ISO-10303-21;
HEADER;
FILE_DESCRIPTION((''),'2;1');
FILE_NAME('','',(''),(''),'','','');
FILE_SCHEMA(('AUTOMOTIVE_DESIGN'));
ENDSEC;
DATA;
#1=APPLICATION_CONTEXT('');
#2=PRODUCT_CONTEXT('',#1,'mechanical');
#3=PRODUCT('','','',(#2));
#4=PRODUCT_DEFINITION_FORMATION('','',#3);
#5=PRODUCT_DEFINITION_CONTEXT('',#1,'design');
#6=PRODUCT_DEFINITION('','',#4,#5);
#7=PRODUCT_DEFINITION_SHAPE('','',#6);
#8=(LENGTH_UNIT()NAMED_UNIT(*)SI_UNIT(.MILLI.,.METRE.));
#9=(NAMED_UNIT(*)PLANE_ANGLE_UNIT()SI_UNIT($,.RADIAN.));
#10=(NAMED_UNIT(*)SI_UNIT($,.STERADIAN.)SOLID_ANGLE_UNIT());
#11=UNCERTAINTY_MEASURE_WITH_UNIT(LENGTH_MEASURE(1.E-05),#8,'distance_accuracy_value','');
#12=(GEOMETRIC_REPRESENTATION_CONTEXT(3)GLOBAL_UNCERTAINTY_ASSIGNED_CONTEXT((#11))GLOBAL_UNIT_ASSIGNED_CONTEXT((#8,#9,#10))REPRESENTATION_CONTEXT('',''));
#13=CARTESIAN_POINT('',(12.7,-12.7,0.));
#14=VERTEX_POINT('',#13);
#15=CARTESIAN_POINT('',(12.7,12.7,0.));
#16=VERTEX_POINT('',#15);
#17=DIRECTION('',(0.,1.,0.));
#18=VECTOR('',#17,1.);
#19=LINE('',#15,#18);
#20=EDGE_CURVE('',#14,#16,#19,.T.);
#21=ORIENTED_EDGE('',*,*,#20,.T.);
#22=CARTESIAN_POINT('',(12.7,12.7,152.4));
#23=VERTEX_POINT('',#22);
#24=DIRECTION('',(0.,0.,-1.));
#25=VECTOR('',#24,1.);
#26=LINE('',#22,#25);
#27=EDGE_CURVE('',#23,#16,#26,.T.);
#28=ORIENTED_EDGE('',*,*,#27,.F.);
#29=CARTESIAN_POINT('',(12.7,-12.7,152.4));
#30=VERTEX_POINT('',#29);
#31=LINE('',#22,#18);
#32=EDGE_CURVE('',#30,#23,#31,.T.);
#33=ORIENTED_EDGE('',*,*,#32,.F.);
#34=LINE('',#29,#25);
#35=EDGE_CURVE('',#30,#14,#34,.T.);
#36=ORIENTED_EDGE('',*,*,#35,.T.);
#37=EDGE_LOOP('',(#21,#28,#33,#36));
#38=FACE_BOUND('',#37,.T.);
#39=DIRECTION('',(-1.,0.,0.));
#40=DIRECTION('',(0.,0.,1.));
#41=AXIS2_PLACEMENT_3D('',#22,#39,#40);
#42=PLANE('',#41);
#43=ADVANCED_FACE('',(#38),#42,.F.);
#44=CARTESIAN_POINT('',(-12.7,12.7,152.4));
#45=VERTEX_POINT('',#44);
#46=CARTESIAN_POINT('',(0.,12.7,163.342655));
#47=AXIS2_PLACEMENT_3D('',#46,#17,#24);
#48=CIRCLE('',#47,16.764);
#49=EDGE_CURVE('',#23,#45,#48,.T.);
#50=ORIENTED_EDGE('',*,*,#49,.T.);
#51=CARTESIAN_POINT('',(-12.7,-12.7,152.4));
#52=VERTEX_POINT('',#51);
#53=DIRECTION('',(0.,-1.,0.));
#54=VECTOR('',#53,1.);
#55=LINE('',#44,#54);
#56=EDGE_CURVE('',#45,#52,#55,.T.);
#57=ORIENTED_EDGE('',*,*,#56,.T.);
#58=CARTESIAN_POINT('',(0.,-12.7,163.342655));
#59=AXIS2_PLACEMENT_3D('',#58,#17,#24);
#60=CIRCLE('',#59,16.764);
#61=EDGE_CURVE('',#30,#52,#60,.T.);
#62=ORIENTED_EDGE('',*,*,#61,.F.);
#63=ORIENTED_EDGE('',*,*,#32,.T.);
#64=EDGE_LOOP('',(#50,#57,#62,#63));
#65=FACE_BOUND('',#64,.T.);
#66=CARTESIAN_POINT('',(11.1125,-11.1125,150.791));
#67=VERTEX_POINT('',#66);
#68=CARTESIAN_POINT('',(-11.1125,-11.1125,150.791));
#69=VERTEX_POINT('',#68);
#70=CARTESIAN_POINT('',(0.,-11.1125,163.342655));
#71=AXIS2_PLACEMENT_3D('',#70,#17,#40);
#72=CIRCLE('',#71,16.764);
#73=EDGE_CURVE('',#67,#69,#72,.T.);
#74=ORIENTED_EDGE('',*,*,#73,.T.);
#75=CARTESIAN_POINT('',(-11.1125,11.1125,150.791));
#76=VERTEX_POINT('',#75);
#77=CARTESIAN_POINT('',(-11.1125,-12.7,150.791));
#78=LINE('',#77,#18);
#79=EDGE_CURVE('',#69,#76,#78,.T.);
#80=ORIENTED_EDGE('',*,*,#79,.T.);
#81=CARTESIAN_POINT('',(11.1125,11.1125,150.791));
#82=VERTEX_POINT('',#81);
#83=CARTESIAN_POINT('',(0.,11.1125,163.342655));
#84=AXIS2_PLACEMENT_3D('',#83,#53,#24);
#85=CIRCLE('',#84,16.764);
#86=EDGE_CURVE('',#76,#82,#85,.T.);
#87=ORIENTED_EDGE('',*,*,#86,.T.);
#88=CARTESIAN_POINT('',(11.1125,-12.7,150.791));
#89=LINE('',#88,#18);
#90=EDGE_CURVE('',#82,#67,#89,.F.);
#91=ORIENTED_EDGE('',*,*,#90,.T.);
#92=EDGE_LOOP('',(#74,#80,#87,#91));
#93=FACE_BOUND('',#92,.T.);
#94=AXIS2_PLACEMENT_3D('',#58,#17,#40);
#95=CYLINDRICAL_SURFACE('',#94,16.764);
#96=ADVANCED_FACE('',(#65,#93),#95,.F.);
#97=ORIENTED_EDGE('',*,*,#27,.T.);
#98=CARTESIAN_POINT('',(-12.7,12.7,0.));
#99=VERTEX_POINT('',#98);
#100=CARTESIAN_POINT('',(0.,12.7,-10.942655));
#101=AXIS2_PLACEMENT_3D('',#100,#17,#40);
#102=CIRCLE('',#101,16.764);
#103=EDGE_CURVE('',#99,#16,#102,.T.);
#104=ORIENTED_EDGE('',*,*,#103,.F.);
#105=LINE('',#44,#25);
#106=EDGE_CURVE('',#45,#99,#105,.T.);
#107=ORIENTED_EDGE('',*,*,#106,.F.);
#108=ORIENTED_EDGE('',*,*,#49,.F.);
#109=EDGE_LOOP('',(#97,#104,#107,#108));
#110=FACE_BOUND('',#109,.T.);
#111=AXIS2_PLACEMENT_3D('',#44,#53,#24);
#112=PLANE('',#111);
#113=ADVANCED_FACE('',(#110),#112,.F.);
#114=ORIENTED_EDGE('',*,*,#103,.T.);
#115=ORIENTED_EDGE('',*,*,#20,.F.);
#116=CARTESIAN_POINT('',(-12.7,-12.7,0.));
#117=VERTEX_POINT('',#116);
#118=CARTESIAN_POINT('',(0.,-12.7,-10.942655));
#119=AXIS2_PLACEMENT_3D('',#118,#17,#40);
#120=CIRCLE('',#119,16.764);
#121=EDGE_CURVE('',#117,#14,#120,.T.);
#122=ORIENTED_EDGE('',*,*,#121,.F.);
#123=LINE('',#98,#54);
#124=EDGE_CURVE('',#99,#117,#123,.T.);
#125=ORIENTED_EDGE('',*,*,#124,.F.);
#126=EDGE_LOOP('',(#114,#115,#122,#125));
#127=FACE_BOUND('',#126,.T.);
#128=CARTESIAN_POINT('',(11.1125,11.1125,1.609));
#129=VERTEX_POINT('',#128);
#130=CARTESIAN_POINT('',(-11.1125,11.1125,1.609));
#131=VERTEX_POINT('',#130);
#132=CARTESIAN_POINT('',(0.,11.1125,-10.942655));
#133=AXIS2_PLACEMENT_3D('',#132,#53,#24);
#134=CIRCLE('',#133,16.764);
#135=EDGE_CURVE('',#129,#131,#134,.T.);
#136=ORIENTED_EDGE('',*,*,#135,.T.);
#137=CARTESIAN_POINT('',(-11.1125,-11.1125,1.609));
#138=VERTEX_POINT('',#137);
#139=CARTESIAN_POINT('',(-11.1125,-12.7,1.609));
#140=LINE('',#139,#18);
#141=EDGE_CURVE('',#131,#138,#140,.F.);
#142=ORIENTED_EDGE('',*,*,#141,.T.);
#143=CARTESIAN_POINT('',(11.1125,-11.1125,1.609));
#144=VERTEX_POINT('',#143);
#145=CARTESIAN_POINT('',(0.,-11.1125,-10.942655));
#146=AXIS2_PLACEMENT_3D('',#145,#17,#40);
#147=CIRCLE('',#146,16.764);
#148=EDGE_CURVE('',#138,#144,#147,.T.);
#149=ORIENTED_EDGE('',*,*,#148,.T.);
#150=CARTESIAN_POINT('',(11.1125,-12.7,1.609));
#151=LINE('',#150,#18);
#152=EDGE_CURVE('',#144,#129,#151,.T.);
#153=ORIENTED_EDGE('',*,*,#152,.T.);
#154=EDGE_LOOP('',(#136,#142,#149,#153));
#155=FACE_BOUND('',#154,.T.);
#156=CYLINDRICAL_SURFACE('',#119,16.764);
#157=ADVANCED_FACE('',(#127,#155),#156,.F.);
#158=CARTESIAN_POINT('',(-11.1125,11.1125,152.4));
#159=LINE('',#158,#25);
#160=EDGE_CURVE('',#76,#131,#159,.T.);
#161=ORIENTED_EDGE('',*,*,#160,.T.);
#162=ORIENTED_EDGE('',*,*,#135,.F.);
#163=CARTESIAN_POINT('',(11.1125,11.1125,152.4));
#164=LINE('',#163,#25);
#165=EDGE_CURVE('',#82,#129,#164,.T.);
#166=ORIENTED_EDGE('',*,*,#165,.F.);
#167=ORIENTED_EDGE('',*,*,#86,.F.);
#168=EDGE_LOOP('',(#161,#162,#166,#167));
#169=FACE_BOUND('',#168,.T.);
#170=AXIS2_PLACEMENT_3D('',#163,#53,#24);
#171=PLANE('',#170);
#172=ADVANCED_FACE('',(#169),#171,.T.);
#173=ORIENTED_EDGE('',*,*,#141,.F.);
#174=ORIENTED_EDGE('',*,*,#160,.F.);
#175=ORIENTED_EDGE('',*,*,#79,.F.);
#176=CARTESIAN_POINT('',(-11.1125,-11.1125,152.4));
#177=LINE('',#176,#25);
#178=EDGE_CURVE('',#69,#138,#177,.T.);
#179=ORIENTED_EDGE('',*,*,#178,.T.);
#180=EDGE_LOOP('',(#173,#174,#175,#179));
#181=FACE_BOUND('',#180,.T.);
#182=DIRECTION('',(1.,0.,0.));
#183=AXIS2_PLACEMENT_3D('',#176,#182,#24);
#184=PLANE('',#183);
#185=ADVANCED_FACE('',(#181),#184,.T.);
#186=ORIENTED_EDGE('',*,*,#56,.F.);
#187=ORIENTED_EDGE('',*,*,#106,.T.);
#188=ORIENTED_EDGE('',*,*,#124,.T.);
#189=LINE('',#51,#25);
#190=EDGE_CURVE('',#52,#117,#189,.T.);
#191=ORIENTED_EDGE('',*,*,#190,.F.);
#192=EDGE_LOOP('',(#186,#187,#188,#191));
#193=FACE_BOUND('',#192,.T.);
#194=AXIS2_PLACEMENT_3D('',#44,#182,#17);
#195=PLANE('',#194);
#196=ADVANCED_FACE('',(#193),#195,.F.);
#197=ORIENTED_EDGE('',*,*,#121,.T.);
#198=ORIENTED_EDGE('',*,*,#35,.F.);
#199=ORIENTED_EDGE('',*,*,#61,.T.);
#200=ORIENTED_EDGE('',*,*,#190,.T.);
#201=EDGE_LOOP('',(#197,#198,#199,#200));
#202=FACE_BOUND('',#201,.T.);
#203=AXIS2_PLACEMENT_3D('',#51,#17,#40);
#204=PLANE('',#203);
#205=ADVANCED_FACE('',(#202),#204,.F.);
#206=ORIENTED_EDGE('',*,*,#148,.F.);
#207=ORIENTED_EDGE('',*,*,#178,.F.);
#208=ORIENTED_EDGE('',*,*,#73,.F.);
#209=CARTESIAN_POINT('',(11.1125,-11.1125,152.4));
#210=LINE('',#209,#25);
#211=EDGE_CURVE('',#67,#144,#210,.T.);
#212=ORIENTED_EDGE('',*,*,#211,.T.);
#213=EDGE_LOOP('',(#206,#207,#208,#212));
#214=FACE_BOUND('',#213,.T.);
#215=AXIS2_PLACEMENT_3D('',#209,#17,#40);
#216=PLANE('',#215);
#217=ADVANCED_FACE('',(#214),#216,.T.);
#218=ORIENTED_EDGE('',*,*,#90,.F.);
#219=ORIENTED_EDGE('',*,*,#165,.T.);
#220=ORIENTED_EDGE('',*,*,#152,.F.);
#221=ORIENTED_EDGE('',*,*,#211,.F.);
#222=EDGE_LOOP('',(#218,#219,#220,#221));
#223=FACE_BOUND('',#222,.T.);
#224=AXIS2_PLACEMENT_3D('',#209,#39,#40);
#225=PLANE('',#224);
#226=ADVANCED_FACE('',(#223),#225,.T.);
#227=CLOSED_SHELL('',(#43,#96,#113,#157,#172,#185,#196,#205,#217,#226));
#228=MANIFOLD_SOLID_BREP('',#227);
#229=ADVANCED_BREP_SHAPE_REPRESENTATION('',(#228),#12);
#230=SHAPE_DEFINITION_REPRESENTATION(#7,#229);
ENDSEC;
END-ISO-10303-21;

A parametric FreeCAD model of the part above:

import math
import FreeCAD as App
import Part
import Sketcher
Q = App.Units.Quantity


def add_polygon(sketch, points):
    """Adds a closed chain of lines whose ends are joined by coincident constraints."""
    first, n = sketch.GeometryCount, len(points)
    for a, b in zip(points, points[1:] + points[:1]):
        sketch.addGeometry(Part.LineSegment(App.Vector(*a, 0), App.Vector(*b, 0)), False)
    for i in range(n):
        sketch.addConstraint(Sketcher.Constraint("Coincident", first + i, 2, first + (i + 1) % n, 1))

doc = App.newDocument("Part")
body = doc.addObject("PartDesign::Body", "Body")

sketch1 = body.newObject("Sketcher::SketchObject", "Sketch")
sketch1.AttachmentSupport = (doc.getObject("XY_Plane"), [""])
sketch1.MapMode = "FlatFace"
add_polygon(sketch1, [(-13, 13), (-13, -13), (13, -13), (13, 13)])
add_polygon(sketch1, [(11, -11), (-11, -11), (-11, 11), (11, 11)])
sketch1.addConstraint([
    Sketcher.Constraint("Vertical", 0),
    Sketcher.Constraint("Horizontal", 1),
    Sketcher.Constraint("Vertical", 2),
    Sketcher.Constraint("Horizontal", 3),
    Sketcher.Constraint("Horizontal", 4),
    Sketcher.Constraint("Vertical", 5),
    Sketcher.Constraint("Horizontal", 6),
    Sketcher.Constraint("Vertical", 7),
    Sketcher.Constraint("Symmetric", 0, 2, 2, 2, -1, 1),
    Sketcher.Constraint("Symmetric", 4, 2, 6, 2, -1, 1),
    Sketcher.Constraint("Equal", 3, 0),
    Sketcher.Constraint("Equal", 6, 5),
    Sketcher.Constraint("DistanceX", 1, 1, 1, 2, Q("1 in")),
    Sketcher.Constraint("DistanceX", 4, 2, 4, 1, Q("0.875 in")),
])
pad1 = body.newObject("PartDesign::Pad", "Pad")
pad1.Profile = sketch1
pad1.Length = Q("6 in")

sketch2 = body.newObject("Sketcher::SketchObject", "Sketch001")
sketch2.AttachmentSupport = (doc.getObject("XZ_Plane"), [""])
sketch2.MapMode = "FlatFace"
sketch2.AttachmentOffset = App.Placement(App.Vector(0, 0, -0.5 * 25.4), App.Rotation())
sketch2.addGeometry([
    Part.LineSegment(App.Vector(13, 0, 0), App.Vector(-13, 0, 0)),
    Part.ArcOfCircle(Part.Circle(App.Vector(0, -11, 0), App.Vector(0, 0, 1), 17), math.radians(41), math.radians(139)),
    Part.LineSegment(App.Vector(-13, 152, 0), App.Vector(13, 152, 0)),
    Part.ArcOfCircle(Part.Circle(App.Vector(0, 163, 0), App.Vector(0, 0, 1), 17), math.radians(-139), math.radians(-41)),
], False)
sketch2.addConstraint([
    Sketcher.Constraint("Coincident", 0, 1, 1, 1),
    Sketcher.Constraint("Coincident", 1, 2, 0, 2),
    Sketcher.Constraint("Coincident", 2, 1, 3, 1),
    Sketcher.Constraint("Coincident", 3, 2, 2, 2),
    Sketcher.Constraint("Horizontal", 0),
    Sketcher.Constraint("Horizontal", 2),
    Sketcher.Constraint("Equal", 1, 3),
    Sketcher.Constraint("Symmetric", 0, 1, 1, 2, -1, 1),
    Sketcher.Constraint("PointOnObject", 3, 3, -2),
    Sketcher.Constraint("Vertical", 1, 2, 2, 1),
    Sketcher.Constraint("DistanceX", 0, 2, 0, 1, Q("1 in")),
    Sketcher.Constraint("Radius", 1, Q("0.66 in")),
    Sketcher.Constraint("DistanceY", -1, 1, 2, 1, Q("6 in")),
])
pocket1 = body.newObject("PartDesign::Pocket", "Pocket")
pocket1.Profile = sketch2
pocket1.Type = "ThroughAll"
pocket1.Reversed = True

doc.recompute()
